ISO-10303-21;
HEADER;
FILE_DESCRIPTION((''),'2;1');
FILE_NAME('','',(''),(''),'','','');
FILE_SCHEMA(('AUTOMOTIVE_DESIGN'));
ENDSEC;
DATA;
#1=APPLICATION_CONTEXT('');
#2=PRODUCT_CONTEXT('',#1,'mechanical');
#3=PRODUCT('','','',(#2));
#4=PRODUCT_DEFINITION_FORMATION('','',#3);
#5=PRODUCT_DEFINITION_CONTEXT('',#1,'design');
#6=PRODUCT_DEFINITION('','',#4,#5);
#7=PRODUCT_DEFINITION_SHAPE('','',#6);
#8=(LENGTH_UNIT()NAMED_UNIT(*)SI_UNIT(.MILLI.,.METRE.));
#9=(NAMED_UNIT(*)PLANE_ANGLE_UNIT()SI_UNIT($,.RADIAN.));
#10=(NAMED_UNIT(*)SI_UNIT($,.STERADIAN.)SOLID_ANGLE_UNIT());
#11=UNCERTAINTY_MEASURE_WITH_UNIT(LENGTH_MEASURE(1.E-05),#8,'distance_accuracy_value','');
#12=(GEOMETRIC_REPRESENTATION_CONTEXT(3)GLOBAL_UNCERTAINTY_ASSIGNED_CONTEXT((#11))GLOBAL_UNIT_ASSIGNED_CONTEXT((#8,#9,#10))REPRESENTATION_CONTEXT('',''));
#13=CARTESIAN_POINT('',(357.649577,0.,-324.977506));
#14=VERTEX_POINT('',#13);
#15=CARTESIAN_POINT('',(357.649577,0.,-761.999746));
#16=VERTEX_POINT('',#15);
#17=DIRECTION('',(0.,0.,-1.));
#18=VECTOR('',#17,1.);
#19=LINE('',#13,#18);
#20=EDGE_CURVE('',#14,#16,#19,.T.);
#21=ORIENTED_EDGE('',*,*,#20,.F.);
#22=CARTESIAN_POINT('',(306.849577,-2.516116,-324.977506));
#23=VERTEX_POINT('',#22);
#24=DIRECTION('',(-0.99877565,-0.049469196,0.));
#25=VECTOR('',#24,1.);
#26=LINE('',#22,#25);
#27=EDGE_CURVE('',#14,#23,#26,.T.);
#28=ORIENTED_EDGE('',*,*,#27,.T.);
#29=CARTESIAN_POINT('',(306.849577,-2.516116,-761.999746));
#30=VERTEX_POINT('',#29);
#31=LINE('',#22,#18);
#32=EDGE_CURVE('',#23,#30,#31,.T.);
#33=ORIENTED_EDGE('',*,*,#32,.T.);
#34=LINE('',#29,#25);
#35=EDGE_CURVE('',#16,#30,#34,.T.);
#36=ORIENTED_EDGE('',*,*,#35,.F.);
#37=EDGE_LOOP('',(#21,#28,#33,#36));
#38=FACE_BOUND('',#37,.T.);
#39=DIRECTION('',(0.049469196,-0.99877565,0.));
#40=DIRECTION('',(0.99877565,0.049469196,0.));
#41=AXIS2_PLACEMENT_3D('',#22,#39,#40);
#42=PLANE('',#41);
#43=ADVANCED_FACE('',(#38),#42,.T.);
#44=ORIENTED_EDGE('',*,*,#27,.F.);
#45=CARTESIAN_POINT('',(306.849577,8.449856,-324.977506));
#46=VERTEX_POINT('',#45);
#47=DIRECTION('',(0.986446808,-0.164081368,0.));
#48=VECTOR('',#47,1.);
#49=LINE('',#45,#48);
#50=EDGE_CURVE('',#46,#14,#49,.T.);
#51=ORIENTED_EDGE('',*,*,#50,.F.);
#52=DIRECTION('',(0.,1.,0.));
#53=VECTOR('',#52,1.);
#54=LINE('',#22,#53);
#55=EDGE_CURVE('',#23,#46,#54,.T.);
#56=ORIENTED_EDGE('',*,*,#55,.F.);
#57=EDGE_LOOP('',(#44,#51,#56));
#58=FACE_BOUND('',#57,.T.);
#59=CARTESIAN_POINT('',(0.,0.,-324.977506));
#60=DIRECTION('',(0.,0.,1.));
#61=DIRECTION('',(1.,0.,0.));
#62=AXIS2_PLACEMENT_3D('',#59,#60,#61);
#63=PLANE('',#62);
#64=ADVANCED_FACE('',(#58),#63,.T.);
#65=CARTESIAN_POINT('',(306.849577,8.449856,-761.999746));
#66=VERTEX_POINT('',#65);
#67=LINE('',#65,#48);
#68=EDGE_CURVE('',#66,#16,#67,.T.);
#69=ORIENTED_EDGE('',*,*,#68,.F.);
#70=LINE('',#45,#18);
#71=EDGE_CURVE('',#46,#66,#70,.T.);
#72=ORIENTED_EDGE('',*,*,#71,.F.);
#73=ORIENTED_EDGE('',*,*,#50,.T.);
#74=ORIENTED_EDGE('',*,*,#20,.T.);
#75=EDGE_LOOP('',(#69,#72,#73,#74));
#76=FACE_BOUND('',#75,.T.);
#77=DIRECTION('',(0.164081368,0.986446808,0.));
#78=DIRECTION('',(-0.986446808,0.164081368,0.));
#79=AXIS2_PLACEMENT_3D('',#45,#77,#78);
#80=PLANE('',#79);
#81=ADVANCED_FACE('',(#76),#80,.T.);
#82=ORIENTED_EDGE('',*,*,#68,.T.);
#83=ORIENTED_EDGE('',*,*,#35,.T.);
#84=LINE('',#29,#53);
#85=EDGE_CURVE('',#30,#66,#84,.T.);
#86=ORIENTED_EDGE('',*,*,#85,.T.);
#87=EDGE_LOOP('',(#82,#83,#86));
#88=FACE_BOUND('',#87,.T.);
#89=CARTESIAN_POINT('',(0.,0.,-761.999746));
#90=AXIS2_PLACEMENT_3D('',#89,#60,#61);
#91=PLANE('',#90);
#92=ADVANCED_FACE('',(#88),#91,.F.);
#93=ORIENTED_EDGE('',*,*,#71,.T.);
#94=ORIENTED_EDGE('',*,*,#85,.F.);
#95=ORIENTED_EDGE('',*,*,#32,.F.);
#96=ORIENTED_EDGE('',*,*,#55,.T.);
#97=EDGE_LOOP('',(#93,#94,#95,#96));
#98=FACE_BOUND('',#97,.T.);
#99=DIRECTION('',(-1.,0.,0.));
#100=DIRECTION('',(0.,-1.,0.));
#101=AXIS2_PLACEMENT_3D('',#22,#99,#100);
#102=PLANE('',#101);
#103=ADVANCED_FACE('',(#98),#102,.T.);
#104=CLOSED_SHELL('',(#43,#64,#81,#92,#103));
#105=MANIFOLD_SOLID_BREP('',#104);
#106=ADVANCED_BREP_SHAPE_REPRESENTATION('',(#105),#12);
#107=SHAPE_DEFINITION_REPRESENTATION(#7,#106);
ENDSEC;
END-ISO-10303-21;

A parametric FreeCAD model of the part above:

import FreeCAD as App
import Part
import Sketcher
from FreeCAD import Vector
Q = App.Units.Quantity


def add_polygon(sketch, points):
    """Adds a closed chain of lines whose ends are joined by coincident constraints."""
    first, n = sketch.GeometryCount, len(points)
    for a, b in zip(points, points[1:] + points[:1]):
        sketch.addGeometry(Part.LineSegment(App.Vector(*a, 0), App.Vector(*b, 0)), False)
    for i in range(n):
        sketch.addConstraint(Sketcher.Constraint("Coincident", first + i, 2, first + (i + 1) % n, 1))

doc = App.newDocument("Part")
body = doc.addObject("PartDesign::Body", "Body")

# Sketch on XY plane
sketch1 = body.newObject("Sketcher::SketchObject", "Sketch")
sketch1.AttachmentSupport = (doc.getObject("XY_Plane"), [""])
sketch1.MapMode = "FlatFace"
sketch1.AttachmentOffset = App.Placement(Vector(0, 0, -761.999746), App.Rotation())
add_polygon(sketch1, [(307, -3), (307, 8), (358, 0)])  # lines 0-2
sketch1.addConstraint([
    Sketcher.Constraint("Vertical", 0),
    Sketcher.Constraint("PointOnObject", 1, 2, -1),
    Sketcher.Constraint("DistanceX", 0, 2, 1, 2, Q("50.8 mm")),
    Sketcher.Constraint("DistanceY", 0, 1, 0, 2, Q("10.965972 mm")),
    Sketcher.Constraint("Distance", 1, Q("51.497962 mm")),
    Sketcher.Constraint("DistanceX", -1, 1, 0, 2, Q("306.849577 mm")),
])
pad1 = body.newObject("PartDesign::Pad", "Pad")
pad1.Profile = sketch1
pad1.Length = 437.02224

doc.recompute()
